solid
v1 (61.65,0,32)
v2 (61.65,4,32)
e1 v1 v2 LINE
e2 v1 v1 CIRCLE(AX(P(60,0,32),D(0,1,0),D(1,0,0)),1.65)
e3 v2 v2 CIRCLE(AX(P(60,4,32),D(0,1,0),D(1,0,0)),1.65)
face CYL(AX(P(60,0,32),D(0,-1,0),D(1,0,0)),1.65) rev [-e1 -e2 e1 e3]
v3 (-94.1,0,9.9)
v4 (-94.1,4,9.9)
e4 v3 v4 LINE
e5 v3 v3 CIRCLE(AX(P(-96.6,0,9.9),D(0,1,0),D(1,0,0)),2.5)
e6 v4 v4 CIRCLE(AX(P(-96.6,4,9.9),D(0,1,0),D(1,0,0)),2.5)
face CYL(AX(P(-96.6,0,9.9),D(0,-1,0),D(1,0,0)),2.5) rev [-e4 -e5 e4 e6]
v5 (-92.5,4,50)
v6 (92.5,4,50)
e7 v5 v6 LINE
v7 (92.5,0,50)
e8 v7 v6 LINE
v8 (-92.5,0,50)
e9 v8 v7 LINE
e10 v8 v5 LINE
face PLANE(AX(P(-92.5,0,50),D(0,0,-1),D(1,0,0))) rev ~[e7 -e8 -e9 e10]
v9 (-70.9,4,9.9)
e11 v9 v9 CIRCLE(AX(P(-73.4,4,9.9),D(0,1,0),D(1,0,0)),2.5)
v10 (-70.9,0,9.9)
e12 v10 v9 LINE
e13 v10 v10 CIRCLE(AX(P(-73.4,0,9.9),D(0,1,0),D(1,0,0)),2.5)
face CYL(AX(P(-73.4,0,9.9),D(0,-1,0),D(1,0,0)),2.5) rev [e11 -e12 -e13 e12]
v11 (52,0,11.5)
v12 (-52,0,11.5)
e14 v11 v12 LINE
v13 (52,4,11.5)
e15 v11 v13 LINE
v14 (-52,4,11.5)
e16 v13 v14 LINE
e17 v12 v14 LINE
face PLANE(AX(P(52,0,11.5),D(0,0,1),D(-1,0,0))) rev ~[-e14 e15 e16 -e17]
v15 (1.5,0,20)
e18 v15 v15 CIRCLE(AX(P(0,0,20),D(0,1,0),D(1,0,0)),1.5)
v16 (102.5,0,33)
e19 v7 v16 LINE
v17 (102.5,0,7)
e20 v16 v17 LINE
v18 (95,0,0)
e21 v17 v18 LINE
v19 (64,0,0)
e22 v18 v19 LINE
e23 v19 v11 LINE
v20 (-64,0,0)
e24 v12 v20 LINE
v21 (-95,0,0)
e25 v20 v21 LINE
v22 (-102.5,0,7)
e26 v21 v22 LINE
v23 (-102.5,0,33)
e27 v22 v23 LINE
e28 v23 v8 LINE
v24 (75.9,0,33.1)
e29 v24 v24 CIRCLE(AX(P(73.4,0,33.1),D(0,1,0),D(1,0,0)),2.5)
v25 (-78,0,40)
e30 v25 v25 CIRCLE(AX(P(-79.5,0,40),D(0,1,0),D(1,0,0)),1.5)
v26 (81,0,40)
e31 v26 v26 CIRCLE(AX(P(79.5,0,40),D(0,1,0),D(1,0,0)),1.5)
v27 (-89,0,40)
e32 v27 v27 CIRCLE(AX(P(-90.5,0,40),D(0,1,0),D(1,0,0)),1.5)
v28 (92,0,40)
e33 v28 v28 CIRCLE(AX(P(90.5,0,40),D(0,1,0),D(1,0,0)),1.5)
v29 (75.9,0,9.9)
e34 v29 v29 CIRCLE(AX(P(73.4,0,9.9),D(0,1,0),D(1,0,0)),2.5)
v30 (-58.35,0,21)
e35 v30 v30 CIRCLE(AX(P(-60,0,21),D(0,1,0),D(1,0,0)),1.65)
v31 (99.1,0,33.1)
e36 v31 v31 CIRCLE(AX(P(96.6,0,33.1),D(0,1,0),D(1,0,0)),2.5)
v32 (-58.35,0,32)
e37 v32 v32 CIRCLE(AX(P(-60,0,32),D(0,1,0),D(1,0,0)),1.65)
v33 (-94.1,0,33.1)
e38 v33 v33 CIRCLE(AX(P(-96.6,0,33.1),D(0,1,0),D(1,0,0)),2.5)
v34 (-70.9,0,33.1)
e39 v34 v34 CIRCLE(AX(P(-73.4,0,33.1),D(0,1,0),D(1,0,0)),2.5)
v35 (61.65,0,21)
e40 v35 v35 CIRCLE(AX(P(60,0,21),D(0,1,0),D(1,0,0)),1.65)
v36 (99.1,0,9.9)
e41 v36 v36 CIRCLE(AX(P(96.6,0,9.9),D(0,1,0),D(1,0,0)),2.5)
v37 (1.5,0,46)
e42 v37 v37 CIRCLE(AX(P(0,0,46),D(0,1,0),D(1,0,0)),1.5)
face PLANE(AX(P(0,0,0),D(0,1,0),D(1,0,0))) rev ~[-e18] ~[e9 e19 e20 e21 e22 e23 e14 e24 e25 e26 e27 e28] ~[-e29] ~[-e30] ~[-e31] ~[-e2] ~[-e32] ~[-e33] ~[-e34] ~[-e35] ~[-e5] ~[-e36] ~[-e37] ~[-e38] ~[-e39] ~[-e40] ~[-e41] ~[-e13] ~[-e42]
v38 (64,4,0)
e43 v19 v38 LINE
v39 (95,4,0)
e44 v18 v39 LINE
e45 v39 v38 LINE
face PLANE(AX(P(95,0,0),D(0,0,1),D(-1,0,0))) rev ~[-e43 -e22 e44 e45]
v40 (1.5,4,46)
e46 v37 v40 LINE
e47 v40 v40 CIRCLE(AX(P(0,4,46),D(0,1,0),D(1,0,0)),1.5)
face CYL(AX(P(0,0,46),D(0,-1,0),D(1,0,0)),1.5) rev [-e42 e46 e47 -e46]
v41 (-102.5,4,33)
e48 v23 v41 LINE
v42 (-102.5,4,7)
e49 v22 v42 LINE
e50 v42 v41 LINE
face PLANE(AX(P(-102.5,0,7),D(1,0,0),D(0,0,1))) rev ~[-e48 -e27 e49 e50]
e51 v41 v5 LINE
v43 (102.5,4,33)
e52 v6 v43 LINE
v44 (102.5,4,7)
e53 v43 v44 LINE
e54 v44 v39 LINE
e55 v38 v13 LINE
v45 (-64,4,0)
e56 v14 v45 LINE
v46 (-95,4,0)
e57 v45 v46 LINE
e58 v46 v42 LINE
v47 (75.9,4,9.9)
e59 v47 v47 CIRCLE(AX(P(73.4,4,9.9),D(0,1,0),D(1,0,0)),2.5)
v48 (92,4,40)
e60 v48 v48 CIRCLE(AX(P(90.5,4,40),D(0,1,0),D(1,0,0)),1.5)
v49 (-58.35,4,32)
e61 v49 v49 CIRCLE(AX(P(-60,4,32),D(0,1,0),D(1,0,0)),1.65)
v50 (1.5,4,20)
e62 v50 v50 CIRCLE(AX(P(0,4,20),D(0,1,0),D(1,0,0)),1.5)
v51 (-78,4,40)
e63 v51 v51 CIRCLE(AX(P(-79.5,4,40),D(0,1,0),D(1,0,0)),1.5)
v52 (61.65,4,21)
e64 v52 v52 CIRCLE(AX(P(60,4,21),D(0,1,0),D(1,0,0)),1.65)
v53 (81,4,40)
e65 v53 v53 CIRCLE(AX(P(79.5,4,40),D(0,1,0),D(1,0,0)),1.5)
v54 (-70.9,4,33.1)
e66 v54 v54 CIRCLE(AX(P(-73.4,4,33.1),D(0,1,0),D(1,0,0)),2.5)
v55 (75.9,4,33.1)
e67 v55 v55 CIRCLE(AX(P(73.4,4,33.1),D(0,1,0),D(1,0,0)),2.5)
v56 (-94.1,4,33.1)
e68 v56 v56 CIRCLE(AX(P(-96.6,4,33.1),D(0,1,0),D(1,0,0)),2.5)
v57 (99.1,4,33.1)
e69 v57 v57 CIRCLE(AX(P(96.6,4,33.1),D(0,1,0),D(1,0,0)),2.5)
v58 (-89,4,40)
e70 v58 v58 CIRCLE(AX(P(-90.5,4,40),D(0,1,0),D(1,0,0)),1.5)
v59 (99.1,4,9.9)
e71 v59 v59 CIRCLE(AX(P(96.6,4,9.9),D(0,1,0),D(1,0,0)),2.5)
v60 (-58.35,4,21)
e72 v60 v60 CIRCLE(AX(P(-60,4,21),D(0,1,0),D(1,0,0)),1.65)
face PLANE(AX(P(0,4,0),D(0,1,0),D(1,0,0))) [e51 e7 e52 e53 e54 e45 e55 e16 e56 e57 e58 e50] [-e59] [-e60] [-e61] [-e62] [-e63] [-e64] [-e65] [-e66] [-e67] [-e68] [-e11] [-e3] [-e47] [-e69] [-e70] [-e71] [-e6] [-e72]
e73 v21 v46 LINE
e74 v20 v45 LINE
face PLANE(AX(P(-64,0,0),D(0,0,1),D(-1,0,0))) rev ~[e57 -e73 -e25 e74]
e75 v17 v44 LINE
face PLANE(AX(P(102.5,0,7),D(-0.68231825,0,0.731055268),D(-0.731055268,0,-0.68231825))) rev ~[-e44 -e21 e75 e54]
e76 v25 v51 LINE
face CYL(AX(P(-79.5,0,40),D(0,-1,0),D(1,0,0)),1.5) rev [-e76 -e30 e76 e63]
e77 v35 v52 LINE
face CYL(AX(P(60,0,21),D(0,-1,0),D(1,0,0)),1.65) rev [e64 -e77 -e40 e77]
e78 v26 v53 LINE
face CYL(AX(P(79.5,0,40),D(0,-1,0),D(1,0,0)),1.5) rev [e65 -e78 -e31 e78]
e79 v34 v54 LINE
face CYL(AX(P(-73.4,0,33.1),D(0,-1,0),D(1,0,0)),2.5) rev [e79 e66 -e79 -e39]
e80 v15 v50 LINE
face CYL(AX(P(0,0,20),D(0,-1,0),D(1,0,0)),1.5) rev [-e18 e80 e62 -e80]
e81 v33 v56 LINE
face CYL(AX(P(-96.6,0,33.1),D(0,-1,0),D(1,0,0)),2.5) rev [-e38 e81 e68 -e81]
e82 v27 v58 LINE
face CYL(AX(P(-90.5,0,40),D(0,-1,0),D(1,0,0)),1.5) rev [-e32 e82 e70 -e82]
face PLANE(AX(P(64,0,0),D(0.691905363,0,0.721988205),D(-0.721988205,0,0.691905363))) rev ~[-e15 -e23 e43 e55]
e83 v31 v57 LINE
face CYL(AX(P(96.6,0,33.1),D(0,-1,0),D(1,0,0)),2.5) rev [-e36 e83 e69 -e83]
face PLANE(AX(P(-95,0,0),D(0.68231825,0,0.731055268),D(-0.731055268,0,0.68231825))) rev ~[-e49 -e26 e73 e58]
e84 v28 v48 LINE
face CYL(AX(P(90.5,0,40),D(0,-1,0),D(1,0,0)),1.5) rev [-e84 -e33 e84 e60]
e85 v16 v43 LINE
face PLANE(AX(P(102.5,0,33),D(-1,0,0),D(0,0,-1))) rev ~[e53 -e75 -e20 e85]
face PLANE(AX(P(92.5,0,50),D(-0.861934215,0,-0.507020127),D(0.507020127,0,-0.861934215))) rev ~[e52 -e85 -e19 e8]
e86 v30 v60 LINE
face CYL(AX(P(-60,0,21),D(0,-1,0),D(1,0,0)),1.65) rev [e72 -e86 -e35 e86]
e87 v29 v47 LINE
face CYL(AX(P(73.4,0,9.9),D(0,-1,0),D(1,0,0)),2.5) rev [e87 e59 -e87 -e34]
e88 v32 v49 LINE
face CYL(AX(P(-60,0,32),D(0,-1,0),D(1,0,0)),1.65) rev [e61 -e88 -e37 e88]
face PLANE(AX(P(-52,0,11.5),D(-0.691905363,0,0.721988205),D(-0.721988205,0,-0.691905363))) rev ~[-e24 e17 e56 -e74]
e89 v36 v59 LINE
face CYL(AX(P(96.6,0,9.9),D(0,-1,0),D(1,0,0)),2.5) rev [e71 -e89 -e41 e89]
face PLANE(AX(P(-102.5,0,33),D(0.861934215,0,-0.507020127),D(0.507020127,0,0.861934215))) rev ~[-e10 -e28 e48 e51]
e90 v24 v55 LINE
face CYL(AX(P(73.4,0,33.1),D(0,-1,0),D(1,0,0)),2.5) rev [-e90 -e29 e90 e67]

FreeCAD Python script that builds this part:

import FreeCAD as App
import Part
import Sketcher
from FreeCAD import Vector
Q = App.Units.Quantity

doc = App.newDocument("Part")
body = doc.addObject("PartDesign::Body", "Body")

sketch1 = body.newObject("Sketcher::SketchObject", "Sketch")
sketch1.AttachmentSupport = (doc.getObject("XZ_Plane"), [""])
sketch1.MapMode = "FlatFace"
sketch1.addGeometry(Part.LineSegment(Vector(-52, 11.5, 0), Vector(-64, 0, 0)), False)
sketch1.addGeometry(Part.LineSegment(Vector(-64, 0, 0), Vector(-95, 0, 0)), False)
sketch1.addGeometry(Part.LineSegment(Vector(-95, 0, 0), Vector(-102.5, 7, 0)), False)
sketch1.addGeometry(Part.LineSegment(Vector(-102.5, 7, 0), Vector(-102.5, 33, 0)), False)
sketch1.addGeometry(Part.LineSegment(Vector(-102.5, 33, 0), Vector(-92.5, 50, 0)), False)
sketch1.addGeometry(Part.LineSegment(Vector(-92.5, 50, 0), Vector(92.5, 50, 0)), False)
sketch1.addGeometry(Part.LineSegment(Vector(92.5, 50, 0), Vector(102.5, 33, 0)), False)
sketch1.addGeometry(Part.LineSegment(Vector(102.5, 33, 0), Vector(102.5, 7, 0)), False)
sketch1.addGeometry(Part.LineSegment(Vector(102.5, 7, 0), Vector(95, 0, 0)), False)
sketch1.addGeometry(Part.LineSegment(Vector(95, 0, 0), Vector(64, 0, 0)), False)
sketch1.addGeometry(Part.LineSegment(Vector(64, 0, 0), Vector(52, 11.5, 0)), False)
sketch1.addGeometry(Part.LineSegment(Vector(52, 11.5, 0), Vector(-52, 11.5, 0)), False)
sketch1.addGeometry(Part.Circle(Vector(-90.5, 40, 0), Vector(0, 0, 1), 1.5), False)
sketch1.addGeometry(Part.Circle(Vector(-79.5, 40, 0), Vector(0, 0, 1), 1.5), False)
sketch1.addGeometry(Part.Circle(Vector(-96.6, 33.1, 0), Vector(0, 0, 1), 2.5), False)
sketch1.addGeometry(Part.Circle(Vector(-73.4, 33.1, 0), Vector(0, 0, 1), 2.5), False)
sketch1.addGeometry(Part.Circle(Vector(-60, 32, 0), Vector(0, 0, 1), 1.65), False)
sketch1.addGeometry(Part.Circle(Vector(0, 46, 0), Vector(0, 0, 1), 1.5), False)
sketch1.addGeometry(Part.Circle(Vector(79.5, 40, 0), Vector(0, 0, 1), 1.5), False)
sketch1.addGeometry(Part.Circle(Vector(90.5, 40, 0), Vector(0, 0, 1), 1.5), False)
sketch1.addGeometry(Part.Circle(Vector(60, 32, 0), Vector(0, 0, 1), 1.65), False)
sketch1.addGeometry(Part.Circle(Vector(73.4, 33.1, 0), Vector(0, 0, 1), 2.5), False)
sketch1.addGeometry(Part.Circle(Vector(96.6, 33.1, 0), Vector(0, 0, 1), 2.5), False)
sketch1.addGeometry(Part.Circle(Vector(-60, 21, 0), Vector(0, 0, 1), 1.65), False)
sketch1.addGeometry(Part.Circle(Vector(-96.6, 9.9, 0), Vector(0, 0, 1), 2.5), False)
sketch1.addGeometry(Part.Circle(Vector(-73.4, 9.9, 0), Vector(0, 0, 1), 2.5), False)
sketch1.addGeometry(Part.Circle(Vector(0, 20, 0), Vector(0, 0, 1), 1.5), False)
sketch1.addGeometry(Part.Circle(Vector(60, 21, 0), Vector(0, 0, 1), 1.65), False)
sketch1.addGeometry(Part.Circle(Vector(73.4, 9.9, 0), Vector(0, 0, 1), 2.5), False)
sketch1.addGeometry(Part.Circle(Vector(96.6, 9.9, 0), Vector(0, 0, 1), 2.5), False)
sketch1.addConstraint(Sketcher.Constraint("Coincident", 0, 2, 1, 1))
sketch1.addConstraint(Sketcher.Constraint("Coincident", 1, 2, 2, 1))
sketch1.addConstraint(Sketcher.Constraint("Coincident", 2, 2, 3, 1))
sketch1.addConstraint(Sketcher.Constraint("Coincident", 3, 2, 4, 1))
sketch1.addConstraint(Sketcher.Constraint("Coincident", 4, 2, 5, 1))
sketch1.addConstraint(Sketcher.Constraint("Coincident", 5, 2, 6, 1))
sketch1.addConstraint(Sketcher.Constraint("Coincident", 6, 2, 7, 1))
sketch1.addConstraint(Sketcher.Constraint("Coincident", 7, 2, 8, 1))
sketch1.addConstraint(Sketcher.Constraint("Coincident", 8, 2, 9, 1))
sketch1.addConstraint(Sketcher.Constraint("Coincident", 9, 2, 10, 1))
sketch1.addConstraint(Sketcher.Constraint("Coincident", 10, 2, 11, 1))
sketch1.addConstraint(Sketcher.Constraint("Coincident", 11, 2, 0, 1))
sketch1.addConstraint(Sketcher.Constraint("Horizontal", 1))
sketch1.addConstraint(Sketcher.Constraint("Vertical", 3))
sketch1.addConstraint(Sketcher.Constraint("Horizontal", 5))
sketch1.addConstraint(Sketcher.Constraint("Vertical", 7))
sketch1.addConstraint(Sketcher.Constraint("Horizontal", 9))
sketch1.addConstraint(Sketcher.Constraint("Horizontal", 11))
sketch1.addConstraint(Sketcher.Constraint("Equal", 12, 13))
sketch1.addConstraint(Sketcher.Constraint("Equal", 14, 15))
sketch1.addConstraint(Sketcher.Constraint("Equal", 13, 17))
sketch1.addConstraint(Sketcher.Constraint("Equal", 17, 18))
sketch1.addConstraint(Sketcher.Constraint("Equal", 18, 19))
sketch1.addConstraint(Sketcher.Constraint("Equal", 16, 20))
sketch1.addConstraint(Sketcher.Constraint("Equal", 15, 21))
sketch1.addConstraint(Sketcher.Constraint("Equal", 21, 22))
sketch1.addConstraint(Sketcher.Constraint("Equal", 20, 23))
sketch1.addConstraint(Sketcher.Constraint("Equal", 22, 24))
sketch1.addConstraint(Sketcher.Constraint("Equal", 24, 25))
sketch1.addConstraint(Sketcher.Constraint("Equal", 19, 26))
sketch1.addConstraint(Sketcher.Constraint("Equal", 23, 27))
sketch1.addConstraint(Sketcher.Constraint("Equal", 25, 28))
sketch1.addConstraint(Sketcher.Constraint("Equal", 28, 29))
sketch1.addConstraint(Sketcher.Constraint("Symmetric", 1, 2, 8, 2, -1, 1))
sketch1.addConstraint(Sketcher.Constraint("Symmetric", 13, 3, 18, 3, -2))
sketch1.addConstraint(Sketcher.Constraint("Symmetric", 12, 3, 19, 3, -2))
sketch1.addConstraint(Sketcher.Constraint("Symmetric", 16, 3, 20, 3, -2))
sketch1.addConstraint(Sketcher.Constraint("Symmetric", 15, 3, 21, 3, -2))
sketch1.addConstraint(Sketcher.Constraint("Symmetric", 14, 3, 22, 3, -2))
sketch1.addConstraint(Sketcher.Constraint("Symmetric", 23, 3, 27, 3, -2))
sketch1.addConstraint(Sketcher.Constraint("Symmetric", 25, 3, 28, 3, -2))
sketch1.addConstraint(Sketcher.Constraint("Symmetric", 24, 3, 29, 3, -2))
sketch1.addConstraint(Sketcher.Constraint("Symmetric", 3, 2, 6, 2, -2))
sketch1.addConstraint(Sketcher.Constraint("Symmetric", 0, 2, 9, 2, -2))
sketch1.addConstraint(Sketcher.Constraint("PointOnObject", 17, 3, -2))
sketch1.addConstraint(Sketcher.Constraint("PointOnObject", 26, 3, -2))
sketch1.addConstraint(Sketcher.Constraint("Horizontal", 12, 3, 13, 3))
sketch1.addConstraint(Sketcher.Constraint("Horizontal", 14, 3, 15, 3))
sketch1.addConstraint(Sketcher.Constraint("Horizontal", 24, 3, 25, 3))
sketch1.addConstraint(Sketcher.Constraint("Horizontal", 2, 2, 7, 2))
sketch1.addConstraint(Sketcher.Constraint("Vertical", 16, 3, 23, 3))
sketch1.addConstraint(Sketcher.Constraint("Vertical", 14, 3, 24, 3))
sketch1.addConstraint(Sketcher.Constraint("Vertical", 15, 3, 25, 3))
sketch1.addConstraint(Sketcher.Constraint("Equal", 4, 6))
sketch1.addConstraint(Sketcher.Constraint("Equal", 0, 10))
sketch1.addConstraint(Sketcher.Constraint("Diameter", 12, Q("3 mm")))
sketch1.addConstraint(Sketcher.Constraint("Diameter", 14, Q("5 mm")))
sketch1.addConstraint(Sketcher.Constraint("Diameter", 16, Q("3.3 mm")))
sketch1.addConstraint(Sketcher.Constraint("DistanceY", -1, 1, 4, 2, Q("50 mm")))
sketch1.addConstraint(Sketcher.Constraint("DistanceY", 26, 3, 16, 3, Q("12 mm")))
sketch1.addConstraint(Sketcher.Constraint("DistanceX", 0, 2, 23, 3, Q("4 mm")))
sketch1.addConstraint(Sketcher.Constraint("DistanceX", 2, 2, 12, 3, Q("12 mm")))
sketch1.addConstraint(Sketcher.Constraint("DistanceX", 3, 2, 13, 3, Q("23 mm")))
sketch1.addConstraint(Sketcher.Constraint("DistanceY", 12, 3, 4, 2, Q("10 mm")))
sketch1.addConstraint(Sketcher.Constraint("DistanceX", 3, 2, 4, 2, Q("10 mm")))
sketch1.addConstraint(Sketcher.Constraint("DistanceY", 3, 2, 4, 2, Q("17 mm")))
sketch1.addConstraint(Sketcher.Constraint("DistanceY", 20, 3, 5, 2, Q("18 mm")))
sketch1.addConstraint(Sketcher.Constraint("DistanceX", 10, 2, 9, 2, Q("12 mm")))
sketch1.addConstraint(Sketcher.Constraint("DistanceX", 2, 2, -1, 1, Q("102.5 mm")))
sketch1.addConstraint(Sketcher.Constraint("DistanceX", 2, 2, 24, 3, Q("5.9 mm")))
sketch1.addConstraint(Sketcher.Constraint("DistanceX", 2, 2, 1, 2, Q("7.5 mm")))
sketch1.addConstraint(Sketcher.Constraint("DistanceX", 2, 2, 25, 3, Q("29.1 mm")))
sketch1.addConstraint(Sketcher.Constraint("DistanceY", 14, 3, 4, 2, Q("16.9 mm")))
sketch1.addConstraint(Sketcher.Constraint("DistanceX", 1, 2, 1, 1, Q("31 mm")))
sketch1.addConstraint(Sketcher.Constraint("DistanceY", 3, 1, 3, 2, Q("26 mm")))
sketch1.addConstraint(Sketcher.Constraint("DistanceY", -1, 1, 17, 3, Q("46 mm")))
sketch1.addConstraint(Sketcher.Constraint("DistanceY", -1, 1, 23, 3, Q("21 mm")))
sketch1.addConstraint(Sketcher.Constraint("DistanceY", -1, 1, 24, 3, Q("9.9 mm")))
sketch1.addConstraint(Sketcher.Constraint("DistanceY", -1, 1, 10, 2, Q("11.5 mm")))
pad1 = body.newObject("PartDesign::Pad", "Pad")
pad1.Profile = sketch1
pad1.Length = 4
pad1.Reversed = True

doc.recompute()
